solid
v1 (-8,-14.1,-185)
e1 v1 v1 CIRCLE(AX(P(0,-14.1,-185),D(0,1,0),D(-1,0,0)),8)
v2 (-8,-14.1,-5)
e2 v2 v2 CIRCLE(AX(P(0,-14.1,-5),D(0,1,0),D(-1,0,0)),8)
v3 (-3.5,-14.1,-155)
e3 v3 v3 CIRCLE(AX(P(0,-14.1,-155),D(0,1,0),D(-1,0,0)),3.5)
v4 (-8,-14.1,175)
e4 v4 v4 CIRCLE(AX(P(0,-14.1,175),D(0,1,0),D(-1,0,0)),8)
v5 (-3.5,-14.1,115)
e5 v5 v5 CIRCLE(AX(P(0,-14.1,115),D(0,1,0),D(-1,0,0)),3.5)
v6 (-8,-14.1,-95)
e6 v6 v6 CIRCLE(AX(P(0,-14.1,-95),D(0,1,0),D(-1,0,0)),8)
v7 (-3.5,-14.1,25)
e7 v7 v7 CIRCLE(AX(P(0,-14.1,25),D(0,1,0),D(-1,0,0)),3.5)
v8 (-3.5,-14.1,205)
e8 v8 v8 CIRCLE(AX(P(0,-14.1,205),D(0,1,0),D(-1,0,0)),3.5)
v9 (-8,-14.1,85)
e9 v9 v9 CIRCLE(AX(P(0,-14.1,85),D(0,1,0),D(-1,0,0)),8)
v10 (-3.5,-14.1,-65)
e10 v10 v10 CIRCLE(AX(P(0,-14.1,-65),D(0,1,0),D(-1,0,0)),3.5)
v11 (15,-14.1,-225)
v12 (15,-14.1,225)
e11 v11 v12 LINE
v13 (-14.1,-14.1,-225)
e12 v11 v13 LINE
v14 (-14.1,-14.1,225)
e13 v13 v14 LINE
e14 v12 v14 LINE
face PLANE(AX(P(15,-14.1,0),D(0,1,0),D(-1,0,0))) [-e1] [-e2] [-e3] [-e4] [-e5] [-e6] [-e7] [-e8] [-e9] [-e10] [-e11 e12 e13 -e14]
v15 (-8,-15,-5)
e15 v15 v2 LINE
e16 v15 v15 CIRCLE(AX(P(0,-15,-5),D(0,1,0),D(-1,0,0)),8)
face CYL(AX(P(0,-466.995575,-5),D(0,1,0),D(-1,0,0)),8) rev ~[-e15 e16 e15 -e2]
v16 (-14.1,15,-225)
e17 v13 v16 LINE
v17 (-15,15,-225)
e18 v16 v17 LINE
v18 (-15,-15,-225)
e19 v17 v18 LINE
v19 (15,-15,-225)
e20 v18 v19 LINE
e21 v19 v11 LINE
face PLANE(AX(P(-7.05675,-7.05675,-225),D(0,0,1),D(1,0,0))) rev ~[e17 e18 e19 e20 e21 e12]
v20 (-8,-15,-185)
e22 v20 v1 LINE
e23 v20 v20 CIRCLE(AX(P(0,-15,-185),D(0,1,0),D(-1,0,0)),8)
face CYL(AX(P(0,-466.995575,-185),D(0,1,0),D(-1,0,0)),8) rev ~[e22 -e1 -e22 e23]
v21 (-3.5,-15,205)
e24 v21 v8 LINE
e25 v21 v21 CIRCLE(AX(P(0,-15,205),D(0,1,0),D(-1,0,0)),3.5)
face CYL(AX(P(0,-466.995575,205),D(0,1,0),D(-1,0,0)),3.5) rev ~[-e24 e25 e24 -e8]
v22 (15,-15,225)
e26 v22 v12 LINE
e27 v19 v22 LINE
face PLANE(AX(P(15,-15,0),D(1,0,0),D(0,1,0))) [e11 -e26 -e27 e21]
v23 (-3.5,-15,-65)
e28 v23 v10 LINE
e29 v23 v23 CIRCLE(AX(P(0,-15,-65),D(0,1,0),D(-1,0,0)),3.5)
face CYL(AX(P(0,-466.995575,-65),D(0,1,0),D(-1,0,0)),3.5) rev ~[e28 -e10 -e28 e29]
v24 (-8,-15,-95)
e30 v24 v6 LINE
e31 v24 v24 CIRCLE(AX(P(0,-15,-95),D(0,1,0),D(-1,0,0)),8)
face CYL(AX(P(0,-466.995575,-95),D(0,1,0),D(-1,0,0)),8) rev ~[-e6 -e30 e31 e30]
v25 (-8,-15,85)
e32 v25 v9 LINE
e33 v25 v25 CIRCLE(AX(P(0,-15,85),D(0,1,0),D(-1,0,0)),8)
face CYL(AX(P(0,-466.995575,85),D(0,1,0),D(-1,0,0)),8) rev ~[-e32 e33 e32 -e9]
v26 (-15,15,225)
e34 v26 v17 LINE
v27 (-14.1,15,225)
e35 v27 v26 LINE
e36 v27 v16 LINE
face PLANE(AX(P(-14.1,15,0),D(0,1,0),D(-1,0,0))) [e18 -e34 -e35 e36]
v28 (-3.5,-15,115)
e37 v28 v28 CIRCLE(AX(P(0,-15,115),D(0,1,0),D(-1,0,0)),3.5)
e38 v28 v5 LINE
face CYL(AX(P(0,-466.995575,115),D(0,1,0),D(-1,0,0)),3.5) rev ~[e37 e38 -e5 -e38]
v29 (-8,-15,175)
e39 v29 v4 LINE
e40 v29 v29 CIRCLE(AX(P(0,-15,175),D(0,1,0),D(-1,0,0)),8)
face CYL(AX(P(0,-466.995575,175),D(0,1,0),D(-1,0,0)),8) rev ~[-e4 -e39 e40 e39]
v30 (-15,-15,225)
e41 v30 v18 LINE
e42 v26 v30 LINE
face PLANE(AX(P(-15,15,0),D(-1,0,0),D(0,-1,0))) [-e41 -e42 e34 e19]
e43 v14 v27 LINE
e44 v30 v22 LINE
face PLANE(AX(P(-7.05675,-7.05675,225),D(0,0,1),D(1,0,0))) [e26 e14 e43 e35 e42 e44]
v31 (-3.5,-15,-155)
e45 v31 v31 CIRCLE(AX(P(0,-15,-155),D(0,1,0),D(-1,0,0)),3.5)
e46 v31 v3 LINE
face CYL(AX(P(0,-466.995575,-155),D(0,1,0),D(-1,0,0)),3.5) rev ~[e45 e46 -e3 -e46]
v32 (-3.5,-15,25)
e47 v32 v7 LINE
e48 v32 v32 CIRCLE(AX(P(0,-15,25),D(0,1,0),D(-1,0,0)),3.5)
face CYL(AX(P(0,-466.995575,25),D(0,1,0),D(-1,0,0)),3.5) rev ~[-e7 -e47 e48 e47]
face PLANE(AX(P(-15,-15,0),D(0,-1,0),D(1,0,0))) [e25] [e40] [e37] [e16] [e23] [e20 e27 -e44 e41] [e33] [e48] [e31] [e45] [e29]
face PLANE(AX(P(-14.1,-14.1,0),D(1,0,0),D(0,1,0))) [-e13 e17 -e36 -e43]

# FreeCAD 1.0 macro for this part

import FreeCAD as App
import Part
import Sketcher
from FreeCAD import Vector

doc = App.newDocument("Part")
body = doc.addObject("PartDesign::Body", "Body")

# Sketch on XY plane
sketch1 = doc.addObject("Sketcher::SketchObject", "Sketch")
body.addObject(sketch1)
sketch1.AttachmentSupport = (doc.XY_Plane, [""])
sketch1.MapMode = "FlatFace"
sketch1.addGeometry(Part.LineSegment(Vector(-15, -15, 0), Vector(15, -15, 0)), False)
sketch1.addGeometry(Part.LineSegment(Vector(15, -15, 0), Vector(15, -14.1, 0)), False)
sketch1.addGeometry(Part.LineSegment(Vector(15, -14.1, 0), Vector(-14.1, -14.1, 0)), False)
sketch1.addGeometry(Part.LineSegment(Vector(-14.1, -14.1, 0), Vector(-14.1, 15, 0)), False)
sketch1.addGeometry(Part.LineSegment(Vector(-14.1, 15, 0), Vector(-15, 15, 0)), False)
sketch1.addGeometry(Part.LineSegment(Vector(-15, 15, 0), Vector(-15, -15, 0)), False)
sketch1.addConstraint(Sketcher.Constraint("Coincident", 0, 2, 1, 1))
sketch1.addConstraint(Sketcher.Constraint("Coincident", 1, 2, 2, 1))
sketch1.addConstraint(Sketcher.Constraint("Coincident", 2, 2, 3, 1))
sketch1.addConstraint(Sketcher.Constraint("Coincident", 3, 2, 4, 1))
sketch1.addConstraint(Sketcher.Constraint("Coincident", 4, 2, 5, 1))
sketch1.addConstraint(Sketcher.Constraint("Coincident", 5, 2, 0, 1))
sketch1.addConstraint(Sketcher.Constraint("Horizontal", 0))
sketch1.addConstraint(Sketcher.Constraint("Vertical", 1))
sketch1.addConstraint(Sketcher.Constraint("Horizontal", 2))
sketch1.addConstraint(Sketcher.Constraint("Vertical", 3))
sketch1.addConstraint(Sketcher.Constraint("Horizontal", 4))
sketch1.addConstraint(Sketcher.Constraint("Vertical", 5))
sketch1.addConstraint(Sketcher.Constraint("Symmetric", 0, 2, 4, 2, -1, 1))
sketch1.addConstraint(Sketcher.Constraint("Equal", 4, 1))
sketch1.addConstraint(Sketcher.Constraint("Equal", 2, 3))
sketch1.addConstraint(Sketcher.Constraint("DistanceX", 0, 1, 0, 2, 30.0))
sketch1.addConstraint(Sketcher.Constraint("DistanceX", 2, 2, 2, 1, 29.1))
pad1 = doc.addObject("PartDesign::Pad", "Pad")
body.addObject(pad1)
pad1.Profile = sketch1
pad1.Length = 450
pad1.Midplane = True

# Sketch on XZ plane
sketch2 = doc.addObject("Sketcher::SketchObject", "Sketch001")
body.addObject(sketch2)
sketch2.AttachmentSupport = (doc.XZ_Plane, [""])
sketch2.MapMode = "FlatFace"
sketch2.AttachmentOffset = App.Placement(Vector(0, 0, 15), App.Rotation())
sketch2.addGeometry(Part.Circle(Vector(0, 175, 0), Vector(0, 0, 1), 8), False)
sketch2.addGeometry(Part.Circle(Vector(0, 85, 0), Vector(0, 0, 1), 8), False)
sketch2.addGeometry(Part.Circle(Vector(0, -5, 0), Vector(0, 0, 1), 8), False)
sketch2.addGeometry(Part.Circle(Vector(0, -95, 0), Vector(0, 0, 1), 8), False)
sketch2.addGeometry(Part.Circle(Vector(0, -185, 0), Vector(0, 0, 1), 8), False)
sketch2.addConstraint(Sketcher.Constraint("Equal", 0, 1))
sketch2.addConstraint(Sketcher.Constraint("Equal", 1, 2))
sketch2.addConstraint(Sketcher.Constraint("Equal", 2, 3))
sketch2.addConstraint(Sketcher.Constraint("Equal", 3, 4))
sketch2.addConstraint(Sketcher.Constraint("PointOnObject", 0, 3, -2))
sketch2.addConstraint(Sketcher.Constraint("PointOnObject", 1, 3, -2))
sketch2.addConstraint(Sketcher.Constraint("PointOnObject", 2, 3, -2))
sketch2.addConstraint(Sketcher.Constraint("PointOnObject", 3, 3, -2))
sketch2.addConstraint(Sketcher.Constraint("PointOnObject", 4, 3, -2))
sketch2.addConstraint(Sketcher.Constraint("Diameter", 0, 16.0))
sketch2.addConstraint(Sketcher.Constraint("DistanceY", -1, 1, 0, 3, 175.0))
sketch2.addConstraint(Sketcher.Constraint("DistanceY", -1, 1, 1, 3, 85.0))
sketch2.addConstraint(Sketcher.Constraint("DistanceY", 2, 3, -1, 1, 5.0))
sketch2.addConstraint(Sketcher.Constraint("DistanceY", 3, 3, -1, 1, 95.0))
sketch2.addConstraint(Sketcher.Constraint("DistanceY", 4, 3, -1, 1, 185.0))
doc.recompute()
hole = doc.addObject("PartDesign::Hole", "Hole")
body.addObject(hole)
hole.Profile = sketch2
hole.ThreadType = "None"
hole.Diameter = 16
hole.DepthType = "ThroughAll"

# Sketch on XZ plane
sketch3 = doc.addObject("Sketcher::SketchObject", "Sketch002")
body.addObject(sketch3)
sketch3.AttachmentSupport = (doc.XZ_Plane, [""])
sketch3.MapMode = "FlatFace"
sketch3.AttachmentOffset = App.Placement(Vector(0, 0, 15), App.Rotation())
sketch3.addGeometry(Part.Circle(Vector(0, -155, 0), Vector(0, 0, 1), 3.5), False)
sketch3.addGeometry(Part.Circle(Vector(0, -65, 0), Vector(0, 0, 1), 3.5), False)
sketch3.addGeometry(Part.Circle(Vector(0, 25, 0), Vector(0, 0, 1), 3.5), False)
sketch3.addGeometry(Part.Circle(Vector(0, 115, 0), Vector(0, 0, 1), 3.5), False)
sketch3.addGeometry(Part.Circle(Vector(0, 205, 0), Vector(0, 0, 1), 3.5), False)
sketch3.addConstraint(Sketcher.Constraint("Equal", 0, 1))
sketch3.addConstraint(Sketcher.Constraint("Equal", 1, 2))
sketch3.addConstraint(Sketcher.Constraint("Equal", 2, 3))
sketch3.addConstraint(Sketcher.Constraint("Equal", 3, 4))
sketch3.addConstraint(Sketcher.Constraint("PointOnObject", 0, 3, -2))
sketch3.addConstraint(Sketcher.Constraint("PointOnObject", 1, 3, -2))
sketch3.addConstraint(Sketcher.Constraint("PointOnObject", 2, 3, -2))
sketch3.addConstraint(Sketcher.Constraint("PointOnObject", 3, 3, -2))
sketch3.addConstraint(Sketcher.Constraint("PointOnObject", 4, 3, -2))
sketch3.addConstraint(Sketcher.Constraint("Diameter", 0, 7.0))
sketch3.addConstraint(Sketcher.Constraint("DistanceY", 0, 3, -1, 1, 155.0))
sketch3.addConstraint(Sketcher.Constraint("DistanceY", 1, 3, -1, 1, 65.0))
sketch3.addConstraint(Sketcher.Constraint("DistanceY", -1, 1, 2, 3, 25.0))
sketch3.addConstraint(Sketcher.Constraint("DistanceY", -1, 1, 3, 3, 115.0))
sketch3.addConstraint(Sketcher.Constraint("DistanceY", -1, 1, 4, 3, 205.0))
doc.recompute()
hole2 = doc.addObject("PartDesign::Hole", "Hole001")
body.addObject(hole2)
hole2.Profile = sketch3
hole2.ThreadType = "None"
hole2.Diameter = 7
hole2.DepthType = "ThroughAll"

doc.recompute()
